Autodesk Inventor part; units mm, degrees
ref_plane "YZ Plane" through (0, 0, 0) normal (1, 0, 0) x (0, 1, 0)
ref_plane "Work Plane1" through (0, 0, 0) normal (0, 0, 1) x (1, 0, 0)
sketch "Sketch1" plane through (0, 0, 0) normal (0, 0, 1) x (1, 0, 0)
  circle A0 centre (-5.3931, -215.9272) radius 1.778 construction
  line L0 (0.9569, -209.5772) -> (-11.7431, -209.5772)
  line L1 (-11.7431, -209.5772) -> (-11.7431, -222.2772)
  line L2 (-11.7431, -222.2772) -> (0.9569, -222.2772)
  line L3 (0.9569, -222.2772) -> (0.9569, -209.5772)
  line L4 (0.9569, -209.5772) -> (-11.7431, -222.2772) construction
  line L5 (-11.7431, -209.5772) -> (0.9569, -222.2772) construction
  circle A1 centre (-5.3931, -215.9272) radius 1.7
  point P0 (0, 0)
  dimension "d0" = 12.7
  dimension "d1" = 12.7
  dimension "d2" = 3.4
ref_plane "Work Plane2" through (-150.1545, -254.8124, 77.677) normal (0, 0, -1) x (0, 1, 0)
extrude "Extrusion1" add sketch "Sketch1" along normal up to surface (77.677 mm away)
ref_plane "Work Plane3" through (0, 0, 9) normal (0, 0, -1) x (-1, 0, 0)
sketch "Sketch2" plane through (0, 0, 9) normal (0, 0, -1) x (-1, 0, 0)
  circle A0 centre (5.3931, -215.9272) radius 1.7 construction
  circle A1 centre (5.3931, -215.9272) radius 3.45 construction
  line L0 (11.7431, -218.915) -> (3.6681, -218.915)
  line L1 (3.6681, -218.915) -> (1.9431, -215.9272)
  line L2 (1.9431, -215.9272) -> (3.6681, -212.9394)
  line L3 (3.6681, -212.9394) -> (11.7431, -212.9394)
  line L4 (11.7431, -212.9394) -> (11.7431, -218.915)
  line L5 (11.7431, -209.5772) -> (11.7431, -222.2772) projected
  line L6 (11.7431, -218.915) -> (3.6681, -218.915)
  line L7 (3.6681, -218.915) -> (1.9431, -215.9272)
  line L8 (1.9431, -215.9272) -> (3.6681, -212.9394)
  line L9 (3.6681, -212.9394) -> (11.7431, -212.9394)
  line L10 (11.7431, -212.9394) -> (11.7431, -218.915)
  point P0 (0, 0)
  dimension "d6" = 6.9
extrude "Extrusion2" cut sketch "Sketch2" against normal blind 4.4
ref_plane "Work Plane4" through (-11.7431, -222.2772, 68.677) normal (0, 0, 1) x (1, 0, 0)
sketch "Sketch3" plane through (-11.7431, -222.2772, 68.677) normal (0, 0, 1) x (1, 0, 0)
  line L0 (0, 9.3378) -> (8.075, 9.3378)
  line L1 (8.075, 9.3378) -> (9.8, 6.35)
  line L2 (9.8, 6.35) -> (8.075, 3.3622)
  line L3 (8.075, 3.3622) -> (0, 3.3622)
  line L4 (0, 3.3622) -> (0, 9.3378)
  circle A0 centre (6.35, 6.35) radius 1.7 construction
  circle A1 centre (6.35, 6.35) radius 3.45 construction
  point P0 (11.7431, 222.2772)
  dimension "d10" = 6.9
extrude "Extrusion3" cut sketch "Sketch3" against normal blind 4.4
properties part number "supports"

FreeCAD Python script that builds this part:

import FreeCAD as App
import Part
import Sketcher
Q = App.Units.Quantity


def add_polygon(sketch, points):
    """Adds a closed chain of lines whose ends are joined by coincident constraints."""
    first, n = sketch.GeometryCount, len(points)
    for a, b in zip(points, points[1:] + points[:1]):
        sketch.addGeometry(Part.LineSegment(App.Vector(*a, 0), App.Vector(*b, 0)), False)
    for i in range(n):
        sketch.addConstraint(Sketcher.Constraint("Coincident", first + i, 2, first + (i + 1) % n, 1))

doc = App.newDocument("Part")
body = doc.addObject("PartDesign::Body", "Body")

# Sketch on XY plane
sketch1 = doc.addObject("Sketcher::SketchObject", "Sketch")
body.addObject(sketch1)
sketch1.AttachmentSupport = (doc.XY_Plane, [""])
sketch1.MapMode = "FlatFace"
add_polygon(sketch1, [(0.9569, -222.2772), (0.9569, -209.5772), (-11.7431, -209.5772), (-11.7431, -222.2772)])  # lines 0-3
sketch1.addGeometry(Part.Circle(App.Vector(-5.3931, -215.9272, 0), App.Vector(0, 0, 1), 1.7), False)  # 4
sketch1.addConstraint([
    Sketcher.Constraint("Vertical", 0),
    Sketcher.Constraint("Horizontal", 1),
    Sketcher.Constraint("Vertical", 2),
    Sketcher.Constraint("Horizontal", 3),
    Sketcher.Constraint("Equal", 3, 0),
    Sketcher.Constraint("Diameter", 4, Q("3.4 mm")),
    Sketcher.Constraint("DistanceX", 1, 2, 1, 1, Q("12.7 mm")),
    Sketcher.Constraint("DistanceX", 4, 3, 0, 2, Q("6.35 mm")),
    Sketcher.Constraint("DistanceY", 4, 3, 0, 2, Q("6.35 mm")),
    Sketcher.Constraint("DistanceX", 4, 3, -1, 1, Q("5.393 mm")),
    Sketcher.Constraint("DistanceY", 4, 3, -1, 1, Q("215.9272 mm")),
])
pad1 = doc.addObject("PartDesign::Pad", "Pad")
body.addObject(pad1)
pad1.Profile = sketch1
pad1.Length = 77.677

# Sketch on XY plane
sketch2 = doc.addObject("Sketcher::SketchObject", "Sketch001")
body.addObject(sketch2)
sketch2.AttachmentSupport = (doc.XY_Plane, [""])
sketch2.MapMode = "FlatFace"
sketch2.AttachmentOffset = App.Placement(App.Vector(0, 0, 9), App.Rotation())
add_polygon(sketch2, [(-3.6681, -218.915), (-11.7431, -218.915), (-11.7431, -212.9394), (-3.6681, -212.9394), (-1.9431, -215.9272)])  # lines 0-4
sketch2.addConstraint([
    Sketcher.Constraint("Horizontal", 0),
    Sketcher.Constraint("Vertical", 1),
    Sketcher.Constraint("Horizontal", 2),
    Sketcher.Constraint("Vertical", 2, 2, 4, 2),
    Sketcher.Constraint("Equal", 3, 4),
    Sketcher.Constraint("Angle", 3, Q("-60 deg")),
    Sketcher.Constraint("DistanceX", 0, 2, 3, 2, Q("9.8 mm")),
    Sketcher.Constraint("Distance", 3, Q("3.45 mm")),
    Sketcher.Constraint("DistanceX", 0, 2, -1, 1, Q("11.743 mm")),
    Sketcher.Constraint("DistanceY", 0, 2, -1, 1, Q("218.915 mm")),
])
pocket1 = doc.addObject("PartDesign::Pocket", "Pocket")
body.addObject(pocket1)
pocket1.Profile = sketch2
pocket1.Length = 4.4
pocket1.Reversed = True

# Sketch on XY plane
sketch3 = doc.addObject("Sketcher::SketchObject", "Sketch002")
body.addObject(sketch3)
sketch3.AttachmentSupport = (doc.XY_Plane, [""])
sketch3.MapMode = "FlatFace"
sketch3.AttachmentOffset = App.Placement(App.Vector(0, 0, 68.677), App.Rotation())
add_polygon(sketch3, [(-3.6681, -212.9394), (-11.7431, -212.9394), (-11.7431, -218.915), (-3.6681, -218.915), (-1.9431, -215.9272)])  # lines 0-4
sketch3.addConstraint([
    Sketcher.Constraint("Horizontal", 0),
    Sketcher.Constraint("Vertical", 1),
    Sketcher.Constraint("Horizontal", 2),
    Sketcher.Constraint("Vertical", 2, 2, 4, 2),
    Sketcher.Constraint("Equal", 3, 4),
    Sketcher.Constraint("Angle", 3, Q("60 deg")),
    Sketcher.Constraint("DistanceX", 0, 2, 3, 2, Q("9.8 mm")),
    Sketcher.Constraint("Distance", 3, Q("3.45 mm")),
    Sketcher.Constraint("DistanceX", 0, 2, -1, 1, Q("11.743 mm")),
    Sketcher.Constraint("DistanceY", 1, 2, -1, 1, Q("218.915 mm")),
])
pocket2 = doc.addObject("PartDesign::Pocket", "Pocket001")
body.addObject(pocket2)
pocket2.Profile = sketch3
pocket2.Length = 4.4

doc.recompute()
